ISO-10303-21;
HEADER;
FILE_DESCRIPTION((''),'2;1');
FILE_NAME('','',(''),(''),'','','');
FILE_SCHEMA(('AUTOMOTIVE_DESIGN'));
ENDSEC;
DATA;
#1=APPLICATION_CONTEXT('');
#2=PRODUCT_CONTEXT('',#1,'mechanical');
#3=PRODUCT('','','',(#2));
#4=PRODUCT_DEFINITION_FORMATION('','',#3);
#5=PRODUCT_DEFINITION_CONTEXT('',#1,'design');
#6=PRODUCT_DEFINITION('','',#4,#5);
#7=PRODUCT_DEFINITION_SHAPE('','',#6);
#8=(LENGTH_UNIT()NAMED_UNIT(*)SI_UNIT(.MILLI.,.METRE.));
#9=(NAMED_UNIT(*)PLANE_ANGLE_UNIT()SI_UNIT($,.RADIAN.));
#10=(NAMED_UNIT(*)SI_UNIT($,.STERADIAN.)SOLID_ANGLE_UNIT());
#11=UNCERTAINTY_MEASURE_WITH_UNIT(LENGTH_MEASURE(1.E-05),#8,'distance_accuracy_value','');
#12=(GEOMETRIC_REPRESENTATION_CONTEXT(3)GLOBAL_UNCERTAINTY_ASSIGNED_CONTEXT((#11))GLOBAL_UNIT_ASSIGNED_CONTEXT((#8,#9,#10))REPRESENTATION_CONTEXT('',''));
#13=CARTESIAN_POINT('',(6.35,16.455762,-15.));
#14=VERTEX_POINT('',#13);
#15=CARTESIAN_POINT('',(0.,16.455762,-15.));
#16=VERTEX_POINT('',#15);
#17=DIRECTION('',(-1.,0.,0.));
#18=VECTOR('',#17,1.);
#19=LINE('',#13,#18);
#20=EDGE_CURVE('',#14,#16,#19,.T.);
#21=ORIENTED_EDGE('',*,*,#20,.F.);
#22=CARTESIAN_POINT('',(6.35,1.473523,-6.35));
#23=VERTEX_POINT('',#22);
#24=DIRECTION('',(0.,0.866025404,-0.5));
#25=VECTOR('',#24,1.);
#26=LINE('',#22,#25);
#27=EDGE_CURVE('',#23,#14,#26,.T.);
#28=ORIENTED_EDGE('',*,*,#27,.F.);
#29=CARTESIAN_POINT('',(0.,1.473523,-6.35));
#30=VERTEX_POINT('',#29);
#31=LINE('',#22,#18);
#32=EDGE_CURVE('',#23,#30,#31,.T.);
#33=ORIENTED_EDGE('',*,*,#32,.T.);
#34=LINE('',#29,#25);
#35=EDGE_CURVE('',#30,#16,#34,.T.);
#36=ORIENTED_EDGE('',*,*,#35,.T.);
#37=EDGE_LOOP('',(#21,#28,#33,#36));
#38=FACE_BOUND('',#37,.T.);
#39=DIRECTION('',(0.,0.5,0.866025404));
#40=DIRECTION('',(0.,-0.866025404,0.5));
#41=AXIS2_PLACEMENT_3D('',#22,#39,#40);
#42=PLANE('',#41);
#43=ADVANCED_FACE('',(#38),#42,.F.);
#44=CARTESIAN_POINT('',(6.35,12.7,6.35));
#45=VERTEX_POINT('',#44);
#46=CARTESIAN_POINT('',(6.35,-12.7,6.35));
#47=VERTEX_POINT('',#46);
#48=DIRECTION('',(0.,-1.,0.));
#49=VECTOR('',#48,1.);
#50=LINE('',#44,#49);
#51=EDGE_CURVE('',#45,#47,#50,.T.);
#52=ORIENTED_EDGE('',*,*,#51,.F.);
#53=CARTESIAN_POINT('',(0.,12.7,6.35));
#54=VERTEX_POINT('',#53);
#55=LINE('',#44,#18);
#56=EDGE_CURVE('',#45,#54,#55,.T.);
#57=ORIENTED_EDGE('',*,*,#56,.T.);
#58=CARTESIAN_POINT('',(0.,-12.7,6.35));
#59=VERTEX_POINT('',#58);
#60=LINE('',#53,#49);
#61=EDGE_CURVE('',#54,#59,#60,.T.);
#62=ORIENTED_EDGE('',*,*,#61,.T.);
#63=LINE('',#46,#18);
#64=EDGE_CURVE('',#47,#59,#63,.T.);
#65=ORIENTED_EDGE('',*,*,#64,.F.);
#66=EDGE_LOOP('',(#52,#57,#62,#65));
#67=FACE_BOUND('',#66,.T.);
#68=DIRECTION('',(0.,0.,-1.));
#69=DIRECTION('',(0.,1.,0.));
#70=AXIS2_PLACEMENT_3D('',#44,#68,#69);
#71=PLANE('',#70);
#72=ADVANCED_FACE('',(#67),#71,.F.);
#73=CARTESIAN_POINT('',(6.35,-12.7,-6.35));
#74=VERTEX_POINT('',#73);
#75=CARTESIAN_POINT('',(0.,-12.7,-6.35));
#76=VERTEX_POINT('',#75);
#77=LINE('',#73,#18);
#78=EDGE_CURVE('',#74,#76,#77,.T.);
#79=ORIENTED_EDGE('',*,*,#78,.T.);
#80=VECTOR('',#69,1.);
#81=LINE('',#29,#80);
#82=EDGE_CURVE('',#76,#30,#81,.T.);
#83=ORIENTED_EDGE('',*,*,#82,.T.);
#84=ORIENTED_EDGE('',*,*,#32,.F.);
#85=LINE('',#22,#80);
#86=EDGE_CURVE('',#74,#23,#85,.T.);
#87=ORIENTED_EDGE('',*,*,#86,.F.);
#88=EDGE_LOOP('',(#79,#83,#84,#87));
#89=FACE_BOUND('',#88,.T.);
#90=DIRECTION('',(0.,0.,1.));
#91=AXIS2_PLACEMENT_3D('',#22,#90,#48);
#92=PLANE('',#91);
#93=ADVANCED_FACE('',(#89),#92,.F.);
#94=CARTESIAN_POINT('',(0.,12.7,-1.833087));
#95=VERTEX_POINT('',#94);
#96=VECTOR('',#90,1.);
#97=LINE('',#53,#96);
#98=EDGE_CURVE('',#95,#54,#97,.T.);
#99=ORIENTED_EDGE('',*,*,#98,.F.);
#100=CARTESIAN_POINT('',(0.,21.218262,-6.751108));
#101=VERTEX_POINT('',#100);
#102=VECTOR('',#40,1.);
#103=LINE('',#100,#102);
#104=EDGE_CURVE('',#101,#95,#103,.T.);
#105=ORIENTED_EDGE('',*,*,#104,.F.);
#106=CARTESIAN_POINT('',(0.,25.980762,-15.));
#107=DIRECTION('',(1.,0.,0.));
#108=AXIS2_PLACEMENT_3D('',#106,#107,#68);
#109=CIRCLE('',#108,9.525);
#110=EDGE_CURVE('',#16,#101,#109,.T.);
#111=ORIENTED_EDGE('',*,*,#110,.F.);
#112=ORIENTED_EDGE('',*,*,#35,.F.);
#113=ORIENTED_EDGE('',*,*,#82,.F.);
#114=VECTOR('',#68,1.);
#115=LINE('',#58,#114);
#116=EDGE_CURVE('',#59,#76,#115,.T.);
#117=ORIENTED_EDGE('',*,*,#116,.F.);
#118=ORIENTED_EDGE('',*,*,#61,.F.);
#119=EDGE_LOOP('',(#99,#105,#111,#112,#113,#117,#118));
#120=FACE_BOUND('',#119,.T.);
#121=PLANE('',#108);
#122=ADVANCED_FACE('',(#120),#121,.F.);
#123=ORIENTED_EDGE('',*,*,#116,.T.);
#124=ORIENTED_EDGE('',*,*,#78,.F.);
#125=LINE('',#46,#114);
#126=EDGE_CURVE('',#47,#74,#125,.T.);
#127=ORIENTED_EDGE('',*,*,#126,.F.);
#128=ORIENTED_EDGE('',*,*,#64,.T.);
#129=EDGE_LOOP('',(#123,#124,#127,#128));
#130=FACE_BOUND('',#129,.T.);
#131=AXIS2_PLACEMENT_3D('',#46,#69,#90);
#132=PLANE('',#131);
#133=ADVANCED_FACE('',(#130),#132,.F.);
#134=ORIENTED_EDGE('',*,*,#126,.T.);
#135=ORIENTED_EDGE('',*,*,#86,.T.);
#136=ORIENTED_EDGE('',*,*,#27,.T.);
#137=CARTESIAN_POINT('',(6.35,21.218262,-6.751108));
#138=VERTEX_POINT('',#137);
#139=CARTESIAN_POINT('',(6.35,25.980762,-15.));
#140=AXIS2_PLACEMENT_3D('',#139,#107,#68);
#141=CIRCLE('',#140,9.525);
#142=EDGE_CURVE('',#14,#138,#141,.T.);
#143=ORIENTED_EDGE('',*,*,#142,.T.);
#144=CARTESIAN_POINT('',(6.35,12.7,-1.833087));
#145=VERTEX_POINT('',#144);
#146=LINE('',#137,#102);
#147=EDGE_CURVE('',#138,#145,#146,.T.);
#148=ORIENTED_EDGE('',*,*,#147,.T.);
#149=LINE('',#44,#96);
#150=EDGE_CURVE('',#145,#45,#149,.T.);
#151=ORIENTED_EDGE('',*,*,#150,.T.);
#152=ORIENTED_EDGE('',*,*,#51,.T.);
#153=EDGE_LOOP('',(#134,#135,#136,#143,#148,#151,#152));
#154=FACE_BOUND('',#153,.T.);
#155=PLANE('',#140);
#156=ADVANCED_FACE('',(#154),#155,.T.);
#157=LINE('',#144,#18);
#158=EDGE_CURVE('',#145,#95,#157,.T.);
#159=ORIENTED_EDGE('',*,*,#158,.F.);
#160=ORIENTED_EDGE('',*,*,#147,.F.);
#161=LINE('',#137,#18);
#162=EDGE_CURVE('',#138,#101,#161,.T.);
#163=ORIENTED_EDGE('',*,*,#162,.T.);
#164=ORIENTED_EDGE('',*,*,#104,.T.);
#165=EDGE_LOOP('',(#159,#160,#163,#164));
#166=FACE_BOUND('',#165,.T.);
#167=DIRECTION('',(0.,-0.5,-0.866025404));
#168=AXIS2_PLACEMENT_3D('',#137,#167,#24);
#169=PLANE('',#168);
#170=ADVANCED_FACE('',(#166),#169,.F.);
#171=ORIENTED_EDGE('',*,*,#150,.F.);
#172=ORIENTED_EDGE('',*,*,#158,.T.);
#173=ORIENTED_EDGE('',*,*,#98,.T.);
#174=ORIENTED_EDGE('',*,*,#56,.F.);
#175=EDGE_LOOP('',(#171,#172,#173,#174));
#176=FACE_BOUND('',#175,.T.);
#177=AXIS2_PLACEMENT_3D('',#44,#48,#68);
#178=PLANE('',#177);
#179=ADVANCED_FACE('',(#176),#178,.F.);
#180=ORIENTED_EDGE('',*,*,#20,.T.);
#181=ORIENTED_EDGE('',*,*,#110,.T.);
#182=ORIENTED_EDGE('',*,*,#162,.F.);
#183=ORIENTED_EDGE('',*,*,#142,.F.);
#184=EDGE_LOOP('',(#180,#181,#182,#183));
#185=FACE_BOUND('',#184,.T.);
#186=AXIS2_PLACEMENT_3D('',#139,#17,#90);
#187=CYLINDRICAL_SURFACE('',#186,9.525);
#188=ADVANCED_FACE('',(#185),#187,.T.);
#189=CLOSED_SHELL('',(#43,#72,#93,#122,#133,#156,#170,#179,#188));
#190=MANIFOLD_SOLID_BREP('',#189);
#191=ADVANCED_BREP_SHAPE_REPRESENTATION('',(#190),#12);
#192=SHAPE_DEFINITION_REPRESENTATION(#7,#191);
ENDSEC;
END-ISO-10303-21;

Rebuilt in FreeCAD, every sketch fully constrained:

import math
import FreeCAD as App
import Part
import Sketcher

V = App.Vector
Q = App.Units.Quantity

doc = App.newDocument("Part")
body = doc.addObject("PartDesign::Body", "Body")

# Sketch on YZ plane
sketch1 = doc.addObject("Sketcher::SketchObject", "Sketch")
body.addObject(sketch1)
sketch1.AttachmentSupport = (doc.YZ_Plane, [""])
sketch1.MapMode = "FlatFace"
sketch1.addGeometry(Part.LineSegment(V(13, -2, 0), V(13, 6, 0)), False)
sketch1.addGeometry(Part.LineSegment(V(13, 6, 0), V(-13, 6, 0)), False)
sketch1.addGeometry(Part.LineSegment(V(-13, 6, 0), V(-13, -6, 0)), False)
sketch1.addGeometry(Part.LineSegment(V(-13, -6, 0), V(1, -6, 0)), False)
sketch1.addGeometry(Part.LineSegment(V(1, -6, 0), V(16, -15, 0)), False)
sketch1.addGeometry(Part.ArcOfCircle(Part.Circle(V(26, -15, 0), V(0, 0, 1), 10), math.radians(180), math.radians(480)), False)
sketch1.addGeometry(Part.LineSegment(V(21, -7, 0), V(13, -2, 0)), False)
sketch1.addConstraint(Sketcher.Constraint("Coincident", 0, 2, 1, 1))
sketch1.addConstraint(Sketcher.Constraint("Coincident", 1, 2, 2, 1))
sketch1.addConstraint(Sketcher.Constraint("Coincident", 2, 2, 3, 1))
sketch1.addConstraint(Sketcher.Constraint("Coincident", 3, 2, 4, 1))
sketch1.addConstraint(Sketcher.Constraint("Coincident", 4, 2, 5, 1))
sketch1.addConstraint(Sketcher.Constraint("Coincident", 5, 2, 6, 1))
sketch1.addConstraint(Sketcher.Constraint("Coincident", 6, 2, 0, 1))
sketch1.addConstraint(Sketcher.Constraint("Vertical", 0))
sketch1.addConstraint(Sketcher.Constraint("Horizontal", 1))
sketch1.addConstraint(Sketcher.Constraint("Vertical", 2))
sketch1.addConstraint(Sketcher.Constraint("Horizontal", 3))
sketch1.addConstraint(Sketcher.Constraint("Symmetric", 0, 2, 2, 2, -1, 1))
sketch1.addConstraint(Sketcher.Constraint("Parallel", 4, 6))
sketch1.addConstraint(Sketcher.Constraint("Horizontal", 5, 3, 4, 2))
sketch1.addConstraint(Sketcher.Constraint("DistanceX", 1, 2, 1, 1, Q("1 in")))
sketch1.addConstraint(Sketcher.Constraint("DistanceY", 2, 2, 2, 1, Q("0.5 in")))
sketch1.addConstraint(Sketcher.Constraint("Angle", 4, Q("-30 deg")))
sketch1.addConstraint(Sketcher.Constraint("Radius", 5, Q("0.375 in")))
sketch1.addConstraint(Sketcher.Constraint("DistanceX", 4, 2, 5, 2, Q("0.1875 in")))
sketch1.addConstraint(Sketcher.Constraint("Distance", 4, Q("17.3 mm")))
sketch1.addConstraint(Sketcher.Constraint("Distance", 6, Q("9.836042 mm")))
pad1 = doc.addObject("PartDesign::Pad", "Pad")
body.addObject(pad1)
pad1.Profile = sketch1
pad1.Length = Q("0.25 in")

doc.recompute()
